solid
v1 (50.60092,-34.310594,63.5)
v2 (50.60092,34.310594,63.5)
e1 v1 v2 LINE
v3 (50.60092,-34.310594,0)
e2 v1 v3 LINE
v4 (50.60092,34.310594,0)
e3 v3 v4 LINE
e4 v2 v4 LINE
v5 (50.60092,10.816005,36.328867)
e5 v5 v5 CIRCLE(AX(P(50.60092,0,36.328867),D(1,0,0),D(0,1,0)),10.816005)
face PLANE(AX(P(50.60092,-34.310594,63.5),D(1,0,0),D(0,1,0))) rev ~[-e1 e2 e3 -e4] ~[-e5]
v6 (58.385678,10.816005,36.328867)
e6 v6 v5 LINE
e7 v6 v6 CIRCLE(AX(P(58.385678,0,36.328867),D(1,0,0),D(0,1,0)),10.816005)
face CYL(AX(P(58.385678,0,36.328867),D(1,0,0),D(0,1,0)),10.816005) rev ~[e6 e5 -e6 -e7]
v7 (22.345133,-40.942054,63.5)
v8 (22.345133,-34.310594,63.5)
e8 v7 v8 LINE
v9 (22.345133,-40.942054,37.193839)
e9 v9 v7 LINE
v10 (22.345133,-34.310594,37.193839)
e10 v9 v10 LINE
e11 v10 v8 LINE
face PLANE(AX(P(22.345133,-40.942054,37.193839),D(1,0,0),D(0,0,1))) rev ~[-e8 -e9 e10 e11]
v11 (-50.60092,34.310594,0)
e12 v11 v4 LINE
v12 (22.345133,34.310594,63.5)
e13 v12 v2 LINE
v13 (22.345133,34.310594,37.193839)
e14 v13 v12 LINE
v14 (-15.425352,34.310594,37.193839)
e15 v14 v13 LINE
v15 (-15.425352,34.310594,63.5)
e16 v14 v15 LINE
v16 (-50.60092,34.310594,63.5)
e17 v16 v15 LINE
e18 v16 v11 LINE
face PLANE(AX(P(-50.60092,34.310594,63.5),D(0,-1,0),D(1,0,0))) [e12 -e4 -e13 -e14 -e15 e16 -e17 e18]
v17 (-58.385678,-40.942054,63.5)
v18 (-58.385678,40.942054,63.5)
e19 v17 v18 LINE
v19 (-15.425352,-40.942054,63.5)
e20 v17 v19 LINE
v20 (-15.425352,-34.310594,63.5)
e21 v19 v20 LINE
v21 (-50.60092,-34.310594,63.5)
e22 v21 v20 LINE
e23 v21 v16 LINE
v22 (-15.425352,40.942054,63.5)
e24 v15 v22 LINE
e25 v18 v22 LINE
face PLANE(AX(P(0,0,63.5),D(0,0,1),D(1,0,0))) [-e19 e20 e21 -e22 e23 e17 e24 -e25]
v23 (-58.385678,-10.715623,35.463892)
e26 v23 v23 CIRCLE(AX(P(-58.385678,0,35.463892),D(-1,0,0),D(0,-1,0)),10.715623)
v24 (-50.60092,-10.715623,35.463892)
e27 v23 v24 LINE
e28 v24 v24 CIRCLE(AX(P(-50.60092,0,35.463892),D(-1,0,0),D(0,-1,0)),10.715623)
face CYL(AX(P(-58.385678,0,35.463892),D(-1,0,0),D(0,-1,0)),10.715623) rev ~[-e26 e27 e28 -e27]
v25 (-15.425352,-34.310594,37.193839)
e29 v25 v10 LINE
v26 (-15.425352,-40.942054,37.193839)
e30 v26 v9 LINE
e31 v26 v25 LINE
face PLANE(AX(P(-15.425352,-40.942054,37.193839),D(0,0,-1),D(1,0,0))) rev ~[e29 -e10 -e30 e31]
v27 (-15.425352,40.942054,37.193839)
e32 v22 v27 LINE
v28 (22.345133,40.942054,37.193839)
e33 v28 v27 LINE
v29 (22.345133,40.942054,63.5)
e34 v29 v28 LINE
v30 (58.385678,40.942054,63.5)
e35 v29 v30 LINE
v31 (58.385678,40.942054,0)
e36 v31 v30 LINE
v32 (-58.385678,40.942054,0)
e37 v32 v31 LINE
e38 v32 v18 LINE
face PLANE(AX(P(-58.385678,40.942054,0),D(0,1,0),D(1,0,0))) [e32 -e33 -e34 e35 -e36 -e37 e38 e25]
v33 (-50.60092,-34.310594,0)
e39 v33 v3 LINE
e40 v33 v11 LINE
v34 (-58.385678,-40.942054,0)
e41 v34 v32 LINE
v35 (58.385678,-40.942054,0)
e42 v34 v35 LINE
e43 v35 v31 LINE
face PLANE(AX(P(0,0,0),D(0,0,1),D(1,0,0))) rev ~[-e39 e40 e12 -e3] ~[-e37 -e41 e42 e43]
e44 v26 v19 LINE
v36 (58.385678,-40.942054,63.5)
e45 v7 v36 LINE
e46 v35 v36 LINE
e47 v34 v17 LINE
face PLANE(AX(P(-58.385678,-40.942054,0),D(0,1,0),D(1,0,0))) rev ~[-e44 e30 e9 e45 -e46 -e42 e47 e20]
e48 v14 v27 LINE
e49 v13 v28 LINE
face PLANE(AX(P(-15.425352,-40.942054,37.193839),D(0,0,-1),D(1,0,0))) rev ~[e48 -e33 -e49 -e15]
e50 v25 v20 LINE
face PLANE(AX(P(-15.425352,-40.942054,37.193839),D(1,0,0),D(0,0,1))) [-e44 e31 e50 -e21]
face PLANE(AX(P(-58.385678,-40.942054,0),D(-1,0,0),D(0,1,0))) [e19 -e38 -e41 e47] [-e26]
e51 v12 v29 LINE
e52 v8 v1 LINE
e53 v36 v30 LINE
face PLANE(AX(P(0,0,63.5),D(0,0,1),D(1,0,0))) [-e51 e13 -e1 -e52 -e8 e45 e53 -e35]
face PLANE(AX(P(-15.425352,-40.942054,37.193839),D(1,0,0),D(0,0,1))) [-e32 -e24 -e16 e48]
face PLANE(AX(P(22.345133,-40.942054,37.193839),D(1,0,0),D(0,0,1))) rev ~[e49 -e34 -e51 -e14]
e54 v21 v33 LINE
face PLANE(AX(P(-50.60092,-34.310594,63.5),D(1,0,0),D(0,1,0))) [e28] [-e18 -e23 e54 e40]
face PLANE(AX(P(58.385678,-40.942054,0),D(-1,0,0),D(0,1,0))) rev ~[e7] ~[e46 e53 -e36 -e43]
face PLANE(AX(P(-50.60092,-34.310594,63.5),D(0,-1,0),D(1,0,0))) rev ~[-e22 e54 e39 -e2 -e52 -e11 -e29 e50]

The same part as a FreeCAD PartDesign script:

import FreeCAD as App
import Part
import Sketcher

V = App.Vector
Q = App.Units.Quantity


def add_polygon(sketch, points):
    """Adds a closed chain of lines whose ends are joined by coincident constraints."""
    first, n = sketch.GeometryCount, len(points)
    for a, b in zip(points, points[1:] + points[:1]):
        sketch.addGeometry(Part.LineSegment(App.Vector(*a, 0), App.Vector(*b, 0)), False)
    for i in range(n):
        sketch.addConstraint(Sketcher.Constraint("Coincident", first + i, 2, first + (i + 1) % n, 1))

doc = App.newDocument("Part")
params = doc.addObject("Spreadsheet::Sheet", "Params")
for row, (alias, value) in enumerate([
    ("pad1_length", "2.5 in"),
    ("pocket1_length", "3 in"),
    ("pocket2_length", "4 in"),
    ("pocket3_length", "4 in"),
    ("pocket4_length", "4 in"),
], start=1):
    params.set(f"A{row}", alias)
    params.set(f"B{row}", "=" + value)
    params.setAlias(f"B{row}", alias)

body = doc.addObject("PartDesign::Body", "Body")

# Sketch on XY plane
sketch1 = doc.addObject("Sketcher::SketchObject", "Sketch")
body.addObject(sketch1)
sketch1.AttachmentSupport = (doc.XY_Plane, [""])
sketch1.MapMode = "FlatFace"
add_polygon(sketch1, [(-58, 41), (-58, -41), (58, -41), (58, 41)])  # lines 0-3
sketch1.addConstraint([
    Sketcher.Constraint("Vertical", 0),
    Sketcher.Constraint("Horizontal", 1),
    Sketcher.Constraint("Vertical", 2),
    Sketcher.Constraint("Horizontal", 3),
    Sketcher.Constraint("Symmetric", 0, 2, 2, 2, -1, 1),
    Sketcher.Constraint("DistanceY", 0, 2, 0, 1, 81.884108),
    Sketcher.Constraint("DistanceX", 1, 1, 1, 2, 116.771355),
])
pad1 = doc.addObject("PartDesign::Pad", "Pad")
body.addObject(pad1)
pad1.Profile = sketch1
pad1.setExpression("Length", "Params.pad1_length")

# Sketch on XY plane
sketch2 = doc.addObject("Sketcher::SketchObject", "Sketch001")
body.addObject(sketch2)
sketch2.AttachmentSupport = (doc.XY_Plane, [""])
sketch2.MapMode = "FlatFace"
sketch2.AttachmentOffset = App.Placement(V(0, 0, 2.5 * 25.4), App.Rotation())
add_polygon(sketch2, [(-51, 34), (-51, -34), (51, -34), (51, 34)])  # lines 0-3
sketch2.addConstraint([
    Sketcher.Constraint("Vertical", 0),
    Sketcher.Constraint("Horizontal", 1),
    Sketcher.Constraint("Vertical", 2),
    Sketcher.Constraint("Horizontal", 3),
    Sketcher.Constraint("Symmetric", 0, 2, 2, 2, -1, 1),
    Sketcher.Constraint("DistanceX", 1, 1, 1, 2, 101.20184),
    Sketcher.Constraint("DistanceY", 0, 2, 0, 1, 68.621188),
])
pocket1 = doc.addObject("PartDesign::Pocket", "Pocket")
body.addObject(pocket1)
pocket1.Profile = sketch2
pocket1.setExpression("Length", "Params.pocket1_length")

# Sketch on XZ plane
sketch3 = doc.addObject("Sketcher::SketchObject", "Sketch002")
body.addObject(sketch3)
sketch3.AttachmentSupport = (doc.XZ_Plane, [""])
sketch3.MapMode = "FlatFace"
sketch3.AttachmentOffset = App.Placement(V(0, 0, 40.942054), App.Rotation())
add_polygon(sketch3, [(-15, 64), (-15, 37), (22, 37), (22, 64)])  # lines 0-3
sketch3.addConstraint([
    Sketcher.Constraint("Vertical", 0),
    Sketcher.Constraint("Horizontal", 1),
    Sketcher.Constraint("Vertical", 2),
    Sketcher.Constraint("Horizontal", 3),
    Sketcher.Constraint("DistanceY", -1, 1, 2, 2, Q("2.5 in")),
    Sketcher.Constraint("DistanceY", 0, 2, 0, 1, 26.306161),
    Sketcher.Constraint("DistanceX", 1, 1, 1, 2, 37.770486),
    Sketcher.Constraint("DistanceX", 0, 2, -1, 1, 15.425352),
])
pocket2 = doc.addObject("PartDesign::Pocket", "Pocket001")
body.addObject(pocket2)
pocket2.Profile = sketch3
pocket2.setExpression("Length", "Params.pocket2_length")

# Sketch on YZ plane
sketch4 = doc.addObject("Sketcher::SketchObject", "Sketch003")
body.addObject(sketch4)
sketch4.AttachmentSupport = (doc.YZ_Plane, [""])
sketch4.MapMode = "FlatFace"
sketch4.AttachmentOffset = App.Placement(V(0, 0, -58.385678), App.Rotation())
sketch4.addGeometry(Part.Circle(V(0, 35, 0), V(0, 0, 1), 11), False)
sketch4.addConstraint([
    Sketcher.Constraint("PointOnObject", 0, 3, -2),
    Sketcher.Constraint("Diameter", 0, 21.431246),
    Sketcher.Constraint("DistanceY", -1, 1, 0, 3, 35.463892),
])
pocket3 = doc.addObject("PartDesign::Pocket", "Pocket002")
body.addObject(pocket3)
pocket3.Profile = sketch4
pocket3.setExpression("Length", "Params.pocket3_length")
pocket3.Reversed = True

# Sketch on YZ plane
sketch5 = doc.addObject("Sketcher::SketchObject", "Sketch004")
body.addObject(sketch5)
sketch5.AttachmentSupport = (doc.YZ_Plane, [""])
sketch5.MapMode = "FlatFace"
sketch5.AttachmentOffset = App.Placement(V(0, 0, 58.385678), App.Rotation())
sketch5.addGeometry(Part.Circle(V(0, 36, 0), V(0, 0, 1), 11), False)
sketch5.addConstraint([
    Sketcher.Constraint("PointOnObject", 0, 3, -2),
    Sketcher.Constraint("Diameter", 0, 21.63201),
    Sketcher.Constraint("DistanceY", -1, 1, 0, 3, 36.328867),
])
pocket4 = doc.addObject("PartDesign::Pocket", "Pocket003")
body.addObject(pocket4)
pocket4.Profile = sketch5
pocket4.setExpression("Length", "Params.pocket4_length")

doc.recompute()
